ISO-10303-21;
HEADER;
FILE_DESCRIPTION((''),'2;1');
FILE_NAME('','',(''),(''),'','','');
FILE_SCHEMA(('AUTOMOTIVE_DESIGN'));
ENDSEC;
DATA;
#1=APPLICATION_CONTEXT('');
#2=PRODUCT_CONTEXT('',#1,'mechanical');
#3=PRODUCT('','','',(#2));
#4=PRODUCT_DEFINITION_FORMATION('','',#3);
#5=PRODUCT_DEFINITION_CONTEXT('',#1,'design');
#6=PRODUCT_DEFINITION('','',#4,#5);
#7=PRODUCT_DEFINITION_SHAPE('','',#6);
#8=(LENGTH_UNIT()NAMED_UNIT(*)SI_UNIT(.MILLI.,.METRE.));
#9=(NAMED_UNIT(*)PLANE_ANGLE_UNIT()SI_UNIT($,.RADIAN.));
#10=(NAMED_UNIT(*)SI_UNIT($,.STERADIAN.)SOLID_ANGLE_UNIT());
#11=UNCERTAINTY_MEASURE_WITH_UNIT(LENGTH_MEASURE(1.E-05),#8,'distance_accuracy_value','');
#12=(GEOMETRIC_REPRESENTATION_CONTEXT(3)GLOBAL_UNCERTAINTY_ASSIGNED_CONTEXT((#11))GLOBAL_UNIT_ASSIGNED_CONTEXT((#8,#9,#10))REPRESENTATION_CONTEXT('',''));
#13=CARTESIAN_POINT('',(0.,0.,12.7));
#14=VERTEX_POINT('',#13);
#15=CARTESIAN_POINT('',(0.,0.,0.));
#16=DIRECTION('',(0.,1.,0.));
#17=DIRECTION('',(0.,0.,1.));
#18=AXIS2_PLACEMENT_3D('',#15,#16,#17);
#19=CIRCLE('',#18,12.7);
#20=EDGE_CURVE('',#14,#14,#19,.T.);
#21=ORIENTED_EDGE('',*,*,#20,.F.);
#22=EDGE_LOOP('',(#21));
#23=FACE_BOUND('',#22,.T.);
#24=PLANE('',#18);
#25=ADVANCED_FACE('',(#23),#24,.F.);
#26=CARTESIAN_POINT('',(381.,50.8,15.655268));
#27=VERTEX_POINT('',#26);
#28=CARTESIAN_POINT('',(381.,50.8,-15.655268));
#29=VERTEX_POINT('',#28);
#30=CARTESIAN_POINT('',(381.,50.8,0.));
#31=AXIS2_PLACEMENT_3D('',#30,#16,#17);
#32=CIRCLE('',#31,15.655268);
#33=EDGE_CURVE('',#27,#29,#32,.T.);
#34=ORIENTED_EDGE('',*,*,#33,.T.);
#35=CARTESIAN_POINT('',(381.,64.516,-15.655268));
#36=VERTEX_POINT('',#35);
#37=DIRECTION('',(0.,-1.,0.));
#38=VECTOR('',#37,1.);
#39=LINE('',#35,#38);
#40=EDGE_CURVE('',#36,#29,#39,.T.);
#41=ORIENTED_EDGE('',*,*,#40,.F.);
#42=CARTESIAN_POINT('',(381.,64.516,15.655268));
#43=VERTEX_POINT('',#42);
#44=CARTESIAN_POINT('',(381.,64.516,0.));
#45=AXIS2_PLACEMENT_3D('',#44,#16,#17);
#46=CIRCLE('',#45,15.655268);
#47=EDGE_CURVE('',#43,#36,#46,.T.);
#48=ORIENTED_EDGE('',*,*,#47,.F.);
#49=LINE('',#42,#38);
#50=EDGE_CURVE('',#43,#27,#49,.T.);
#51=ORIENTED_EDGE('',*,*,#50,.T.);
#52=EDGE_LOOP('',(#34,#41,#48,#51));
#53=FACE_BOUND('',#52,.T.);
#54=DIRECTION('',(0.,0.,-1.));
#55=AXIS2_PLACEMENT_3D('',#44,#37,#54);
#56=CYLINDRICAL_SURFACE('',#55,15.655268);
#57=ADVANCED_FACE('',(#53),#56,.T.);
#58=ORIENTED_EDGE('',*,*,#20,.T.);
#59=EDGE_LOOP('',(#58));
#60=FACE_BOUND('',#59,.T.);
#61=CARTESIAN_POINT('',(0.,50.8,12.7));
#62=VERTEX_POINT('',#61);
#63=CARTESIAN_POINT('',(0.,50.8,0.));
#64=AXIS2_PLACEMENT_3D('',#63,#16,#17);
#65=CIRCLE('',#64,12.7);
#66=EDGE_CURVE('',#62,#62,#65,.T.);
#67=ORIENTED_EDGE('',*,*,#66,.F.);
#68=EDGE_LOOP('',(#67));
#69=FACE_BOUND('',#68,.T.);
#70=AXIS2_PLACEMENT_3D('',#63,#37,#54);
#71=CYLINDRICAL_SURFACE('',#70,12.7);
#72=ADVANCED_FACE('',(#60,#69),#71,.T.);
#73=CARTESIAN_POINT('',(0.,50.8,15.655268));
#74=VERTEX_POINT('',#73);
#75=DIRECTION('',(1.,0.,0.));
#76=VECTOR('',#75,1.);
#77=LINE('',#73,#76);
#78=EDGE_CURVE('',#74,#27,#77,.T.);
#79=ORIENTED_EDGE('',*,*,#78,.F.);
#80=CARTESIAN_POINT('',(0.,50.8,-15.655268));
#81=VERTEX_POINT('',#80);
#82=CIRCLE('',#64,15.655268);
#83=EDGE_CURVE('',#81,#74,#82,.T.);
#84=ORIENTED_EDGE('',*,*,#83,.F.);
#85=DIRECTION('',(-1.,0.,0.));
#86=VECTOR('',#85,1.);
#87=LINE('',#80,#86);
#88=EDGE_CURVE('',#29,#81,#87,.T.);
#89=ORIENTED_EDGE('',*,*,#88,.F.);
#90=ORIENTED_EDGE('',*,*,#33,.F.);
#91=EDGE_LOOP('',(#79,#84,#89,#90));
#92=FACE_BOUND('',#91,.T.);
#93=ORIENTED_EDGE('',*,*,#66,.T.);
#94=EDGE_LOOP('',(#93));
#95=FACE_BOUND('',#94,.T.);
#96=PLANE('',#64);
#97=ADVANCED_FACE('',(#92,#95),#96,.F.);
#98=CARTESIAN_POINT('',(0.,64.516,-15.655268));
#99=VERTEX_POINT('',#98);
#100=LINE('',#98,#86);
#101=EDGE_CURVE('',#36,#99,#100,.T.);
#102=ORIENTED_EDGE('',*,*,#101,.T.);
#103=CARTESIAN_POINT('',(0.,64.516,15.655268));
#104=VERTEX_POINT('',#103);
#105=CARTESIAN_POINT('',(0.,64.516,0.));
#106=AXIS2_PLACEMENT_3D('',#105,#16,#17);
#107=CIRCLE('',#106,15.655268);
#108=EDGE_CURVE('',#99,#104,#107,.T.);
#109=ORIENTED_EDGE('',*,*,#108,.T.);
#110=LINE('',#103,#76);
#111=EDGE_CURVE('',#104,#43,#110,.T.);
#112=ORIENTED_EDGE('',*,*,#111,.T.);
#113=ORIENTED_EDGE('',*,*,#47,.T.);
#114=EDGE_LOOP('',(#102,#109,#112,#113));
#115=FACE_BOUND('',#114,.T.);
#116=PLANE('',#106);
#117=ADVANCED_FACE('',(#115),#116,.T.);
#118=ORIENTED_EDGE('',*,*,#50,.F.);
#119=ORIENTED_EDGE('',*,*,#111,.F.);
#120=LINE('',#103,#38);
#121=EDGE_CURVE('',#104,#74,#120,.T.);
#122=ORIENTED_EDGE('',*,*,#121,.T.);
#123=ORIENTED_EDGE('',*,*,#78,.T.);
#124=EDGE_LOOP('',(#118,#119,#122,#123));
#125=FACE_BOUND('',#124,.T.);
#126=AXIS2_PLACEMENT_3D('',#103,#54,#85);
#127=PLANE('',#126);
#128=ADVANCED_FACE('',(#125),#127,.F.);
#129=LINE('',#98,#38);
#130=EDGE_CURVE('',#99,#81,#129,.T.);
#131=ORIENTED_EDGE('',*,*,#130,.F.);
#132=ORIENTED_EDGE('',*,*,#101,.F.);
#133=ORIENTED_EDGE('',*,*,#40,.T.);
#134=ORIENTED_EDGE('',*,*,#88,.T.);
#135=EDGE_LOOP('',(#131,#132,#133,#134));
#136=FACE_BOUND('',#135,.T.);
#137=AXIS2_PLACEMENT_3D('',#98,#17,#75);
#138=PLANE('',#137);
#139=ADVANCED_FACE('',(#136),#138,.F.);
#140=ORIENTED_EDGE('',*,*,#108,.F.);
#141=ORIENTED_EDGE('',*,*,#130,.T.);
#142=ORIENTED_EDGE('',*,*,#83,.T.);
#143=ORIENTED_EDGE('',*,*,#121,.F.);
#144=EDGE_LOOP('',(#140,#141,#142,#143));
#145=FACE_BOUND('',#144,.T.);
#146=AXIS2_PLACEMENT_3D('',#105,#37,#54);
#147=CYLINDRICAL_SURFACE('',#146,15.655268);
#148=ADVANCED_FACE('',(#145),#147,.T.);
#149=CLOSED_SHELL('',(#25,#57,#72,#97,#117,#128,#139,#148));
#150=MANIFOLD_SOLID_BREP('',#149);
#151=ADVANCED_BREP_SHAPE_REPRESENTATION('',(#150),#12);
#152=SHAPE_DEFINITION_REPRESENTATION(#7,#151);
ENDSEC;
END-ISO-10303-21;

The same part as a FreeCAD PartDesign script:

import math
import FreeCAD as App
import Part
import Sketcher

V = App.Vector
Q = App.Units.Quantity

doc = App.newDocument("Part")
body = doc.addObject("PartDesign::Body", "Body")

sketch1 = body.newObject("Sketcher::SketchObject", "Sketch")
sketch1.AttachmentSupport = (doc.getObject("XZ_Plane"), [""])
sketch1.MapMode = "FlatFace"
sketch1.addGeometry(Part.Circle(V(0, 0, 0), V(0, 0, 1), 12.7), False)
sketch1.addConstraint(Sketcher.Constraint("Coincident", 0, 3, -1, 1))
sketch1.addConstraint(Sketcher.Constraint("Diameter", 0, Q("1 in")))
pad1 = body.newObject("PartDesign::Pad", "Pad")
pad1.Profile = sketch1
pad1.Length = Q("2 in")
pad1.Reversed = True

sketch2 = body.newObject("Sketcher::SketchObject", "Sketch001")
sketch2.AttachmentSupport = (doc.getObject("XZ_Plane"), [""])
sketch2.MapMode = "FlatFace"
sketch2.AttachmentOffset = App.Placement(V(0, 0, -2 * 25.4), App.Rotation())
sketch2.addGeometry(Part.LineSegment(V(381, -15.655268, 0), V(0, -15.655268, 0)), False)
sketch2.addGeometry(Part.ArcOfCircle(Part.Circle(V(0, 0, 0), V(0, 0, 1), 15.655268), math.radians(90), math.radians(270)), False)
sketch2.addGeometry(Part.LineSegment(V(0, 15.655268, 0), V(381, 15.655268, 0)), False)
sketch2.addGeometry(Part.ArcOfCircle(Part.Circle(V(381, 0, 0), V(0, 0, 1), 15.655268), math.radians(-90), math.radians(90)), False)
sketch2.addConstraint(Sketcher.Constraint("Tangent", 0, 2, 1, 2))
sketch2.addConstraint(Sketcher.Constraint("Tangent", 1, 1, 2, 1))
sketch2.addConstraint(Sketcher.Constraint("Tangent", 2, 2, 3, 2))
sketch2.addConstraint(Sketcher.Constraint("Tangent", 3, 1, 0, 1))
sketch2.addConstraint(Sketcher.Constraint("Horizontal", 0))
sketch2.addConstraint(Sketcher.Constraint("Horizontal", 2))
sketch2.addConstraint(Sketcher.Constraint("Coincident", 1, 3, -1, 1))
sketch2.addConstraint(Sketcher.Constraint("DistanceX", 0, 2, 0, 1, Q("15 in")))
sketch2.addConstraint(Sketcher.Constraint("Radius", 1, 15.655268))
pad2 = body.newObject("PartDesign::Pad", "Pad001")
pad2.Profile = sketch2
pad2.Length = Q("0.54 in")
pad2.Reversed = True

doc.recompute()
